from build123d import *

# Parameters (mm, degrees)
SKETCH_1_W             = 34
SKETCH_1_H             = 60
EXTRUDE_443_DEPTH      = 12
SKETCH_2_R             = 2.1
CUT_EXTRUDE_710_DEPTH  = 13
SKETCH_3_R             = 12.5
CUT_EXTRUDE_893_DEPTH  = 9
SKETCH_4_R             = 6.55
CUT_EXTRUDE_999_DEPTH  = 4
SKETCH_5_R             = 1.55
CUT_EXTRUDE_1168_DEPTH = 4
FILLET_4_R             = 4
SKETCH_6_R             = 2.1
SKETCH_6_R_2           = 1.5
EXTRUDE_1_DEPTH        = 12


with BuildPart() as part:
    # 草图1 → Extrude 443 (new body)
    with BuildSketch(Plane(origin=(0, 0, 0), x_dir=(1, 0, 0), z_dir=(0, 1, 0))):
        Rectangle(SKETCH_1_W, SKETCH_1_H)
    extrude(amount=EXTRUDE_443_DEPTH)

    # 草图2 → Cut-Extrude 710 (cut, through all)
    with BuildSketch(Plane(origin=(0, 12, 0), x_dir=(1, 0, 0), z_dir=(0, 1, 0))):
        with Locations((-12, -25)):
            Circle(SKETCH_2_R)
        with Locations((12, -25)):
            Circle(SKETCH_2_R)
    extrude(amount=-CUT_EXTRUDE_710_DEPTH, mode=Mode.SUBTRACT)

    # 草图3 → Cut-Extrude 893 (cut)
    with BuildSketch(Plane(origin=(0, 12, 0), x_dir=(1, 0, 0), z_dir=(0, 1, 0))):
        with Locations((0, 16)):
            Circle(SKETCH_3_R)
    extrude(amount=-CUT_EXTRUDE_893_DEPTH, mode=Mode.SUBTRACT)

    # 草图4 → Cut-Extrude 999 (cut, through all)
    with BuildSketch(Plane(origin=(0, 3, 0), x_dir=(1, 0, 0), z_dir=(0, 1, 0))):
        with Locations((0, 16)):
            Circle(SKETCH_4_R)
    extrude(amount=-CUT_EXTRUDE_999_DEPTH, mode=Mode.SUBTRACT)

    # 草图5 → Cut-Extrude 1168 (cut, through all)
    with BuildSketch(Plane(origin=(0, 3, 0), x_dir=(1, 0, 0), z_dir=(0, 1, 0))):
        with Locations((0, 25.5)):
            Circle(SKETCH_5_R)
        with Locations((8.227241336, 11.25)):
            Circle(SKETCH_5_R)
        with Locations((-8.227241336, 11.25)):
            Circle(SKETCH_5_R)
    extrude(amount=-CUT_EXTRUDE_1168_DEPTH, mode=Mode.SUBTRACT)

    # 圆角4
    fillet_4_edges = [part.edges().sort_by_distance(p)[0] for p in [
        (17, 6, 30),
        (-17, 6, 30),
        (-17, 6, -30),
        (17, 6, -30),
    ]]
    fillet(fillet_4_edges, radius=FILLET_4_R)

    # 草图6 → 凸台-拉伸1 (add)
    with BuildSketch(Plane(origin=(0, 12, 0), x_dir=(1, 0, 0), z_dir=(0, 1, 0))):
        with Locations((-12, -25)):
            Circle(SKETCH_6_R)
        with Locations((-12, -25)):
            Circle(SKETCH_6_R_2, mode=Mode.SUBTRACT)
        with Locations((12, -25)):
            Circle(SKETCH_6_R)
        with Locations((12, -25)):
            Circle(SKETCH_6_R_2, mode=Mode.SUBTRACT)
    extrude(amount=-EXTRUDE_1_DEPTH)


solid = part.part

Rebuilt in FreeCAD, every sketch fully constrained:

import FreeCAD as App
import Part
import Sketcher

V = App.Vector


def edges_at(feature, points):
    """Names of the edges that pass closest to the given points."""
    edges = feature.Shape.Edges
    near = lambda p: min(range(len(edges)), key=lambda i: edges[i].distToShape(Part.Vertex(*p))[0])
    return sorted({f"Edge{near(p) + 1}" for p in points})


def add_polygon(sketch, points):
    """Adds a closed chain of lines whose ends are joined by coincident constraints."""
    first, n = sketch.GeometryCount, len(points)
    for a, b in zip(points, points[1:] + points[:1]):
        sketch.addGeometry(Part.LineSegment(App.Vector(*a, 0), App.Vector(*b, 0)), False)
    for i in range(n):
        sketch.addConstraint(Sketcher.Constraint("Coincident", first + i, 2, first + (i + 1) % n, 1))

doc = App.newDocument("Part")
params = doc.addObject("Spreadsheet::Sheet", "Params")
for row, (alias, value) in enumerate([
    ("sketch1_width", "34 mm"),
    ("sketch1_height", "60 mm"),
    ("pad1_length", "12 mm"),
    ("sketch2_diameter", "4.2 mm"),
    ("sketch3_diameter", "25 mm"),
    ("pocket2_length", "9 mm"),
    ("sketch4_diameter", "13.1 mm"),
    ("sketch5_diameter", "3.1 mm"),
    ("fillet_radius", "4 mm"),
    ("sketch6_diameter", "3 mm"),
    ("sketch6_diameter2", "4.2 mm"),
    ("pad2_length", "12 mm"),
], start=1):
    params.set(f"A{row}", alias)
    params.set(f"B{row}", "=" + value)
    params.setAlias(f"B{row}", alias)

body = doc.addObject("PartDesign::Body", "Body")

# Sketch on XZ plane
sketch1 = body.newObject("Sketcher::SketchObject", "Sketch")
sketch1.AttachmentSupport = (doc.getObject("XZ_Plane"), [""])
sketch1.MapMode = "FlatFace"
add_polygon(sketch1, [(-17, -30), (-17, 30), (17, 30), (17, -30)])  # lines 0-3
sketch1.addConstraint(Sketcher.Constraint("Vertical", 0))
sketch1.addConstraint(Sketcher.Constraint("Horizontal", 1))
sketch1.addConstraint(Sketcher.Constraint("Vertical", 2))
sketch1.addConstraint(Sketcher.Constraint("Horizontal", 3))
sketch1.addConstraint(Sketcher.Constraint("Symmetric", 0, 2, 2, 2, -1, 1))
sketch1.addConstraint(Sketcher.Constraint("DistanceX", 1, 1, 1, 2, 34.0))
sketch1.addConstraint(Sketcher.Constraint("DistanceY", 0, 1, 0, 2, 60.0))
sketch1.setExpression("Constraints[9]", "Params.sketch1_width")
sketch1.setExpression("Constraints[10]", "Params.sketch1_height")
pad1 = body.newObject("PartDesign::Pad", "Pad")
pad1.Profile = sketch1
pad1.setExpression("Length", "Params.pad1_length")
pad1.Reversed = True

# Sketch on XZ plane
sketch2 = body.newObject("Sketcher::SketchObject", "Sketch001")
sketch2.AttachmentSupport = (doc.getObject("XZ_Plane"), [""])
sketch2.MapMode = "FlatFace"
sketch2.AttachmentOffset = App.Placement(V(0, 0, -12), App.Rotation())
sketch2.addGeometry(Part.Circle(V(-12, 25, 0), V(0, 0, 1), 2.1), False)
sketch2.addGeometry(Part.Circle(V(12, 25, 0), V(0, 0, 1), 2.1), False)
sketch2.addConstraint(Sketcher.Constraint("Equal", 0, 1))
sketch2.addConstraint(Sketcher.Constraint("Symmetric", 0, 3, 1, 3, -2))
sketch2.addConstraint(Sketcher.Constraint("Diameter", 0, 4.2))
sketch2.addConstraint(Sketcher.Constraint("DistanceX", 0, 3, -1, 1, 12.0))
sketch2.addConstraint(Sketcher.Constraint("DistanceY", -1, 1, 0, 3, 25.0))
sketch2.setExpression("Constraints[2]", "Params.sketch2_diameter")
pocket1 = body.newObject("PartDesign::Pocket", "Pocket")
pocket1.Profile = sketch2
pocket1.Type = "ThroughAll"
pocket1.Reversed = True

# Sketch on XZ plane
sketch3 = body.newObject("Sketcher::SketchObject", "Sketch002")
sketch3.AttachmentSupport = (doc.getObject("XZ_Plane"), [""])
sketch3.MapMode = "FlatFace"
sketch3.AttachmentOffset = App.Placement(V(0, 0, -12), App.Rotation())
sketch3.addGeometry(Part.Circle(V(0, -16, 0), V(0, 0, 1), 12), False)
sketch3.addConstraint(Sketcher.Constraint("PointOnObject", 0, 3, -2))
sketch3.addConstraint(Sketcher.Constraint("Diameter", 0, 25.0))
sketch3.addConstraint(Sketcher.Constraint("DistanceY", 0, 3, -1, 1, 16.0))
sketch3.setExpression("Constraints[1]", "Params.sketch3_diameter")
pocket2 = body.newObject("PartDesign::Pocket", "Pocket001")
pocket2.Profile = sketch3
pocket2.setExpression("Length", "Params.pocket2_length")
pocket2.Reversed = True

# Sketch on XZ plane
sketch4 = body.newObject("Sketcher::SketchObject", "Sketch003")
sketch4.AttachmentSupport = (doc.getObject("XZ_Plane"), [""])
sketch4.MapMode = "FlatFace"
sketch4.AttachmentOffset = App.Placement(V(0, 0, -3), App.Rotation())
sketch4.addGeometry(Part.Circle(V(0, -16, 0), V(0, 0, 1), 7), False)
sketch4.addConstraint(Sketcher.Constraint("PointOnObject", 0, 3, -2))
sketch4.addConstraint(Sketcher.Constraint("Diameter", 0, 13.1))
sketch4.addConstraint(Sketcher.Constraint("DistanceY", 0, 3, -1, 1, 16.0))
sketch4.setExpression("Constraints[1]", "Params.sketch4_diameter")
pocket3 = body.newObject("PartDesign::Pocket", "Pocket002")
pocket3.Profile = sketch4
pocket3.Type = "ThroughAll"
pocket3.Reversed = True

# Sketch on XZ plane
sketch5 = body.newObject("Sketcher::SketchObject", "Sketch004")
sketch5.AttachmentSupport = (doc.getObject("XZ_Plane"), [""])
sketch5.MapMode = "FlatFace"
sketch5.AttachmentOffset = App.Placement(V(0, 0, -3), App.Rotation())
sketch5.addGeometry(Part.Circle(V(0, -25.5, 0), V(0, 0, 1), 1.6), False)
sketch5.addGeometry(Part.Circle(V(8.2, -11.2, 0), V(0, 0, 1), 1.6), False)
sketch5.addGeometry(Part.Circle(V(-8.2, -11.2, 0), V(0, 0, 1), 1.6), False)
sketch5.addConstraint(Sketcher.Constraint("Equal", 0, 1))
sketch5.addConstraint(Sketcher.Constraint("Equal", 1, 2))
sketch5.addConstraint(Sketcher.Constraint("Symmetric", 1, 3, 2, 3, -2))
sketch5.addConstraint(Sketcher.Constraint("PointOnObject", 0, 3, -2))
sketch5.addConstraint(Sketcher.Constraint("Diameter", 0, 3.1))
sketch5.addConstraint(Sketcher.Constraint("DistanceY", 0, 3, -1, 1, 25.5))
sketch5.addConstraint(Sketcher.Constraint("DistanceY", 1, 3, -1, 1, 11.25))
sketch5.addConstraint(Sketcher.Constraint("DistanceX", -1, 1, 1, 3, 8.227241))
sketch5.setExpression("Constraints[4]", "Params.sketch5_diameter")
pocket4 = body.newObject("PartDesign::Pocket", "Pocket003")
pocket4.Profile = sketch5
pocket4.Type = "ThroughAll"
pocket4.Reversed = True
doc.recompute()

fillet = body.newObject("PartDesign::Fillet", "Fillet")
fillet.Base = (pocket4, edges_at(pocket4, [
    (17, 6, 30),
    (-17, 6, 30),
    (-17, 6, -30),
    (17, 6, -30),
]))
fillet.setExpression("Radius", "Params.fillet_radius")

# Sketch on XZ plane
sketch6 = body.newObject("Sketcher::SketchObject", "Sketch005")
sketch6.AttachmentSupport = (doc.getObject("XZ_Plane"), [""])
sketch6.MapMode = "FlatFace"
sketch6.AttachmentOffset = App.Placement(V(0, 0, -12), App.Rotation())
sketch6.addGeometry(Part.Circle(V(-12, 25, 0), V(0, 0, 1), 2.1), False)
sketch6.addGeometry(Part.Circle(V(-12, 25, 0), V(0, 0, 1), 1.5), False)
sketch6.addGeometry(Part.Circle(V(12, 25, 0), V(0, 0, 1), 2.1), False)
sketch6.addGeometry(Part.Circle(V(12, 25, 0), V(0, 0, 1), 1.5), False)
sketch6.addConstraint(Sketcher.Constraint("Coincident", 1, 3, 0, 3))
sketch6.addConstraint(Sketcher.Constraint("Coincident", 3, 3, 2, 3))
sketch6.addConstraint(Sketcher.Constraint("Equal", 0, 2))
sketch6.addConstraint(Sketcher.Constraint("Equal", 1, 3))
sketch6.addConstraint(Sketcher.Constraint("Symmetric", 0, 3, 2, 3, -2))
sketch6.addConstraint(Sketcher.Constraint("Diameter", 1, 3.0))
sketch6.addConstraint(Sketcher.Constraint("Diameter", 0, 4.2))
sketch6.addConstraint(Sketcher.Constraint("DistanceX", 0, 3, -1, 1, 12.0))
sketch6.addConstraint(Sketcher.Constraint("DistanceY", -1, 1, 0, 3, 25.0))
sketch6.setExpression("Constraints[5]", "Params.sketch6_diameter")
sketch6.setExpression("Constraints[6]", "Params.sketch6_diameter2")
pad2 = body.newObject("PartDesign::Pad", "Pad001")
pad2.Profile = sketch6
pad2.setExpression("Length", "Params.pad2_length")

doc.recompute()
